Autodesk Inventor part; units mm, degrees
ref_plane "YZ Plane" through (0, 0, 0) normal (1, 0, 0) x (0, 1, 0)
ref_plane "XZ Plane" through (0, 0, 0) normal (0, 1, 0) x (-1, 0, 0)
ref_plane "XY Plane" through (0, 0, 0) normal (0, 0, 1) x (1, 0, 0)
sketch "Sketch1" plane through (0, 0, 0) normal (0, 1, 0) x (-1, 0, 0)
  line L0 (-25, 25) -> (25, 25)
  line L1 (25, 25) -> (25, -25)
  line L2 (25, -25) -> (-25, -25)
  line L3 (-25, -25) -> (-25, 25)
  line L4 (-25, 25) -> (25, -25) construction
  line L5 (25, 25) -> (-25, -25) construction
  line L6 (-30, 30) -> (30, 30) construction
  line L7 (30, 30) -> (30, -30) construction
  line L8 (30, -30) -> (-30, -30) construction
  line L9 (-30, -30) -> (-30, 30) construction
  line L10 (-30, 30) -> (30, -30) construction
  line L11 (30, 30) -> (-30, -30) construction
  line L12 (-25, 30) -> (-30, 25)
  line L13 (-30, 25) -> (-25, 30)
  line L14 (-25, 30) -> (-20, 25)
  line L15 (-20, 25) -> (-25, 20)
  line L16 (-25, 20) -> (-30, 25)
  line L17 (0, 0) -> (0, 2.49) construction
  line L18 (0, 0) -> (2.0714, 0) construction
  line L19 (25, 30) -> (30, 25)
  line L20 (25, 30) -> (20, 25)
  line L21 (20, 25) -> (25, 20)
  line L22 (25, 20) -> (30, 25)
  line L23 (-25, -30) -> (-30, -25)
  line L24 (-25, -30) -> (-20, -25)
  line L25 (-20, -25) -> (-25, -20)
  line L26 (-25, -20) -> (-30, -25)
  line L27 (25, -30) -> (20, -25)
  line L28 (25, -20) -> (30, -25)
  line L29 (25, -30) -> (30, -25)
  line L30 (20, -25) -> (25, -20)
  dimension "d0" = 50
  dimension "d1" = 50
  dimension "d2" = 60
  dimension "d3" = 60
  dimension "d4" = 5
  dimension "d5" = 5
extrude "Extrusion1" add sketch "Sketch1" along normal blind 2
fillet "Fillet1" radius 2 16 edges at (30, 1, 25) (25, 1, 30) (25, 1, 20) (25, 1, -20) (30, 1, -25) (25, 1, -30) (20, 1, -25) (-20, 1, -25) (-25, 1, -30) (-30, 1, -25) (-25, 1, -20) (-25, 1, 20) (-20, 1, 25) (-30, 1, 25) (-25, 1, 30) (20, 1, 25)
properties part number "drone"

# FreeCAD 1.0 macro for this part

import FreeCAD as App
import Part
import Sketcher
from FreeCAD import Vector
Q = App.Units.Quantity


def edges_at(feature, points):
    """Names of the edges that pass closest to the given points."""
    edges = feature.Shape.Edges
    near = lambda p: min(range(len(edges)), key=lambda i: edges[i].distToShape(Part.Vertex(*p))[0])
    return sorted({f"Edge{near(p) + 1}" for p in points})


def add_polygon(sketch, points):
    """Adds a closed chain of lines whose ends are joined by coincident constraints."""
    first, n = sketch.GeometryCount, len(points)
    for a, b in zip(points, points[1:] + points[:1]):
        sketch.addGeometry(Part.LineSegment(App.Vector(*a, 0), App.Vector(*b, 0)), False)
    for i in range(n):
        sketch.addConstraint(Sketcher.Constraint("Coincident", first + i, 2, first + (i + 1) % n, 1))

doc = App.newDocument("Part")
body = doc.addObject("PartDesign::Body", "Body")

# Sketch on XZ plane
sketch1 = body.newObject("Sketcher::SketchObject", "Sketch")
sketch1.AttachmentSupport = (doc.getObject("XZ_Plane"), [""])
sketch1.MapMode = "FlatFace"
add_polygon(sketch1, [(30, 25), (25, 20), (25, -20), (30, -25), (25, -30), (20, -25), (-20, -25), (-25, -30), (-30, -25), (-25, -20), (-25, 20), (-30, 25), (-25, 30), (-20, 25), (20, 25), (25, 30)])  # lines 0-15
sketch1.addConstraint(Sketcher.Constraint("Vertical", 1))
sketch1.addConstraint(Sketcher.Constraint("Horizontal", 5))
sketch1.addConstraint(Sketcher.Constraint("Vertical", 9))
sketch1.addConstraint(Sketcher.Constraint("Horizontal", 13))
sketch1.addConstraint(Sketcher.Constraint("Symmetric", 0, 2, 8, 2, -1, 1))
sketch1.addConstraint(Sketcher.Constraint("Symmetric", 2, 2, 10, 2, -1, 1))
sketch1.addConstraint(Sketcher.Constraint("Symmetric", 3, 2, 11, 2, -1, 1))
sketch1.addConstraint(Sketcher.Constraint("Symmetric", 4, 2, 12, 2, -1, 1))
sketch1.addConstraint(Sketcher.Constraint("Symmetric", 6, 2, 14, 2, -1, 1))
sketch1.addConstraint(Sketcher.Constraint("Symmetric", 7, 2, 15, 2, -1, 1))
sketch1.addConstraint(Sketcher.Constraint("Symmetric", 3, 2, 6, 2, -2))
sketch1.addConstraint(Sketcher.Constraint("Symmetric", 2, 2, 7, 2, -2))
sketch1.addConstraint(Sketcher.Constraint("Perpendicular", 0, 2))
sketch1.addConstraint(Sketcher.Constraint("Perpendicular", 2, 3))
sketch1.addConstraint(Sketcher.Constraint("Perpendicular", 3, 4))
sketch1.addConstraint(Sketcher.Constraint("Perpendicular", 4, 6))
sketch1.addConstraint(Sketcher.Constraint("Perpendicular", 6, 7))
sketch1.addConstraint(Sketcher.Constraint("Perpendicular", 8, 10))
sketch1.addConstraint(Sketcher.Constraint("Perpendicular", 12, 14))
sketch1.addConstraint(Sketcher.Constraint("Horizontal", 2, 2, 4, 2))
sketch1.addConstraint(Sketcher.Constraint("Vertical", 1, 2, 3, 2))
sketch1.addConstraint(Sketcher.Constraint("Equal", 13, 1))
sketch1.addConstraint(Sketcher.Constraint("DistanceX", 1, 2, 2, 2, Q("5 mm")))
sketch1.addConstraint(Sketcher.Constraint("DistanceY", 3, 2, 0, 2, Q("50 mm")))
pad1 = body.newObject("PartDesign::Pad", "Pad")
pad1.Profile = sketch1
pad1.Length = 2
pad1.Reversed = True
doc.recompute()

fillet = body.newObject("PartDesign::Fillet", "Fillet")
fillet.Base = (pad1, edges_at(pad1, [
    (30, 1, 25),
    (25, 1, 30),
    (25, 1, 20),
    (25, 1, -20),
    (30, 1, -25),
    (25, 1, -30),
    (20, 1, -25),
    (-20, 1, -25),
    (-25, 1, -30),
    (-30, 1, -25),
    (-25, 1, -20),
    (-25, 1, 20),
    (-20, 1, 25),
    (-30, 1, 25),
    (-25, 1, 30),
    (20, 1, 25),
]))
fillet.Radius = 2

doc.recompute()
